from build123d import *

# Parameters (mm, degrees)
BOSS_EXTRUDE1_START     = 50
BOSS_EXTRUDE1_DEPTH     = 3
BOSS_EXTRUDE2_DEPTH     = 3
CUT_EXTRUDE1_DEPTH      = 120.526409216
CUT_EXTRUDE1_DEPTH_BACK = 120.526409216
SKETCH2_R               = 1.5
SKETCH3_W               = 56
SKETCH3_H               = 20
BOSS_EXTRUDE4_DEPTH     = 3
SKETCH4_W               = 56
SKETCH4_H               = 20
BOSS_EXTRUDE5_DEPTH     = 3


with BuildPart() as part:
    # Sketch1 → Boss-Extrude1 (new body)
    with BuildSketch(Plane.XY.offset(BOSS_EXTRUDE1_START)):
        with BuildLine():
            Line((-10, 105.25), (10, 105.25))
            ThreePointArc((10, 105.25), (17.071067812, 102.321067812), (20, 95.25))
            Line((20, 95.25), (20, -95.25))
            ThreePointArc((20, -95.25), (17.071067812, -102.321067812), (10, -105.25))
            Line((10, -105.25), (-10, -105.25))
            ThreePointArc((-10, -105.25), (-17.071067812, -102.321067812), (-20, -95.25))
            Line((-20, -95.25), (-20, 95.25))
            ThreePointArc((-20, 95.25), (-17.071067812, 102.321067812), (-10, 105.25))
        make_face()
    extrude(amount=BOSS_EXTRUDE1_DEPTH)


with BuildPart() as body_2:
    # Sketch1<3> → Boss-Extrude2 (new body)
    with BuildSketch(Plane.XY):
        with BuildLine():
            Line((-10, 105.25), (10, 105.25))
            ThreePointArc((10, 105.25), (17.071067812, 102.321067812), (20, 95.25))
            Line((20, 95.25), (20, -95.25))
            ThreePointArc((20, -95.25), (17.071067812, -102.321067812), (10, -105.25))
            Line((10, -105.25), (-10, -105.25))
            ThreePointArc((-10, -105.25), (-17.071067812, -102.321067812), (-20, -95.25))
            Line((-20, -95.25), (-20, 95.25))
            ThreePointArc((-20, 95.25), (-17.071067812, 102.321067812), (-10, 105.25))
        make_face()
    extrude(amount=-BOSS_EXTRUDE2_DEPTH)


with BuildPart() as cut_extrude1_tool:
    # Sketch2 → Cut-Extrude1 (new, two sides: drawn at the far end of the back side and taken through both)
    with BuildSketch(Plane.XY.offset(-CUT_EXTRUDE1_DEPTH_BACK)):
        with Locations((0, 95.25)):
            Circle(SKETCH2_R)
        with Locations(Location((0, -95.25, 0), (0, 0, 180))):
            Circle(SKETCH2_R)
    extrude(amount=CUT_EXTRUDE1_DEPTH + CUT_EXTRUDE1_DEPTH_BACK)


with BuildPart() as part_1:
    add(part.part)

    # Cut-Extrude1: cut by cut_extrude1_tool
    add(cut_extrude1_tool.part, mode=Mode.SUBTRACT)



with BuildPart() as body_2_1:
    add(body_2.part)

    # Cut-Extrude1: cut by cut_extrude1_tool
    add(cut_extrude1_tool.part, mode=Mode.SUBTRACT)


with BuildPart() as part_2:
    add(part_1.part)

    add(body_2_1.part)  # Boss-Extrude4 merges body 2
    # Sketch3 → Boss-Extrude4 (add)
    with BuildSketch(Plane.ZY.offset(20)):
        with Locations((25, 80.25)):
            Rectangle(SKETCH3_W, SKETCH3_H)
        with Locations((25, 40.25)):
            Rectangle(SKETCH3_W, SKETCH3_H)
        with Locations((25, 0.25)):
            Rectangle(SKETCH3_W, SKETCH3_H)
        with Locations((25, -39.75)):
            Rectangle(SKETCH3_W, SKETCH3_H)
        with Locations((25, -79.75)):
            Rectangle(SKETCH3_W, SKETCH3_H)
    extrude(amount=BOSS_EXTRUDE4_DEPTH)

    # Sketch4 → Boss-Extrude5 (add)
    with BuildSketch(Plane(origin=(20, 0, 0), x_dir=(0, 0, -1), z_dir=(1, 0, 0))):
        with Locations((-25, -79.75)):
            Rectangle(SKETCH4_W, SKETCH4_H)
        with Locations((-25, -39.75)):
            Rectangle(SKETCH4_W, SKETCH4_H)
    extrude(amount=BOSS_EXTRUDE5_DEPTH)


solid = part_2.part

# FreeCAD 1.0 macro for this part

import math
import FreeCAD as App
import Part
import Sketcher

V = App.Vector


def add_polygon(sketch, points):
    """Adds a closed chain of lines whose ends are joined by coincident constraints."""
    first, n = sketch.GeometryCount, len(points)
    for a, b in zip(points, points[1:] + points[:1]):
        sketch.addGeometry(Part.LineSegment(App.Vector(*a, 0), App.Vector(*b, 0)), False)
    for i in range(n):
        sketch.addConstraint(Sketcher.Constraint("Coincident", first + i, 2, first + (i + 1) % n, 1))

doc = App.newDocument("Part")
params = doc.addObject("Spreadsheet::Sheet", "Params")
for row, (alias, value) in enumerate([
    ("sketch1_radius", "10 mm"),
    ("sketch1_width", "20 mm"),
    ("sketch1_height", "190.5 mm"),
    ("pad1_length", "3 mm"),
    ("sketch2_radius", "10 mm"),
    ("sketch2_width", "20 mm"),
    ("sketch2_height", "190.5 mm"),
    ("pad2_length", "3 mm"),
    ("sketch3_diameter", "3 mm"),
    ("pad3_length", "120.526409 mm"),
    ("pad3_length2", "120.526409 mm"),
    ("sketch4_width", "20 mm"),
    ("sketch4_height", "56 mm"),
    ("pad4_length", "3 mm"),
    ("sketch5_width", "20 mm"),
    ("sketch5_height", "56 mm"),
    ("pad5_length", "3 mm"),
], start=1):
    params.set(f"A{row}", alias)
    params.set(f"B{row}", "=" + value)
    params.setAlias(f"B{row}", alias)

body = doc.addObject("PartDesign::Body", "Body")

sketch1 = body.newObject("Sketcher::SketchObject", "Sketch")
sketch1.AttachmentSupport = (doc.getObject("XY_Plane"), [""])
sketch1.MapMode = "FlatFace"
sketch1.AttachmentOffset = App.Placement(V(0, 0, 50), App.Rotation())
sketch1.addGeometry([
    Part.LineSegment(V(10, 105, 0), V(-10, 105, 0)),
    Part.ArcOfCircle(Part.Circle(V(-10, 95, 0), V(0, 0, 1), 10), math.radians(90), math.radians(180)),
    Part.LineSegment(V(-20, 95, 0), V(-20, -95, 0)),
    Part.ArcOfCircle(Part.Circle(V(-10, -95, 0), V(0, 0, 1), 10), math.radians(180), math.radians(270)),
    Part.LineSegment(V(-10, -105, 0), V(10, -105, 0)),
    Part.ArcOfCircle(Part.Circle(V(10, -95, 0), V(0, 0, 1), 10), math.radians(-90), math.radians(0)),
    Part.LineSegment(V(20, -95, 0), V(20, 95, 0)),
    Part.ArcOfCircle(Part.Circle(V(10, 95, 0), V(0, 0, 1), 10), math.radians(0), math.radians(90)),
], False)
sketch1.addConstraint([
    Sketcher.Constraint("Tangent", 0, 2, 1, 1),
    Sketcher.Constraint("Tangent", 1, 2, 2, 1),
    Sketcher.Constraint("Tangent", 2, 2, 3, 1),
    Sketcher.Constraint("Tangent", 3, 2, 4, 1),
    Sketcher.Constraint("Tangent", 4, 2, 5, 1),
    Sketcher.Constraint("Tangent", 5, 2, 6, 1),
    Sketcher.Constraint("Tangent", 6, 2, 7, 1),
    Sketcher.Constraint("Tangent", 7, 2, 0, 1),
    Sketcher.Constraint("Horizontal", 0),
    Sketcher.Constraint("Vertical", 2),
    Sketcher.Constraint("Horizontal", 4),
    Sketcher.Constraint("Vertical", 6),
    Sketcher.Constraint("Equal", 1, 3),
    Sketcher.Constraint("Equal", 3, 5),
    Sketcher.Constraint("Equal", 5, 7),
    Sketcher.Constraint("Symmetric", 1, 3, 5, 3, -1, 1),
    Sketcher.Constraint("Radius", 1, 10.0),
    Sketcher.Constraint("DistanceX", 0, 2, 0, 1, 20.0),
    Sketcher.Constraint("DistanceY", 2, 2, 2, 1, 190.5),
])
sketch1.setExpression("Constraints[16]", "Params.sketch1_radius")
sketch1.setExpression("Constraints[17]", "Params.sketch1_width")
sketch1.setExpression("Constraints[18]", "Params.sketch1_height")
pad1 = body.newObject("PartDesign::Pad", "Pad")
pad1.Profile = sketch1
pad1.setExpression("Length", "Params.pad1_length")
body2 = doc.addObject("PartDesign::Body", "Body001")

sketch2 = body2.newObject("Sketcher::SketchObject", "Sketch001")
sketch2.AttachmentSupport = (doc.getObject("XY_Plane001"), [""])
sketch2.MapMode = "FlatFace"
sketch2.addGeometry([
    Part.LineSegment(V(10, 105, 0), V(-10, 105, 0)),
    Part.ArcOfCircle(Part.Circle(V(-10, 95, 0), V(0, 0, 1), 10), math.radians(90), math.radians(180)),
    Part.LineSegment(V(-20, 95, 0), V(-20, -95, 0)),
    Part.ArcOfCircle(Part.Circle(V(-10, -95, 0), V(0, 0, 1), 10), math.radians(180), math.radians(270)),
    Part.LineSegment(V(-10, -105, 0), V(10, -105, 0)),
    Part.ArcOfCircle(Part.Circle(V(10, -95, 0), V(0, 0, 1), 10), math.radians(-90), math.radians(0)),
    Part.LineSegment(V(20, -95, 0), V(20, 95, 0)),
    Part.ArcOfCircle(Part.Circle(V(10, 95, 0), V(0, 0, 1), 10), math.radians(0), math.radians(90)),
], False)
sketch2.addConstraint([
    Sketcher.Constraint("Tangent", 0, 2, 1, 1),
    Sketcher.Constraint("Tangent", 1, 2, 2, 1),
    Sketcher.Constraint("Tangent", 2, 2, 3, 1),
    Sketcher.Constraint("Tangent", 3, 2, 4, 1),
    Sketcher.Constraint("Tangent", 4, 2, 5, 1),
    Sketcher.Constraint("Tangent", 5, 2, 6, 1),
    Sketcher.Constraint("Tangent", 6, 2, 7, 1),
    Sketcher.Constraint("Tangent", 7, 2, 0, 1),
    Sketcher.Constraint("Horizontal", 0),
    Sketcher.Constraint("Vertical", 2),
    Sketcher.Constraint("Horizontal", 4),
    Sketcher.Constraint("Vertical", 6),
    Sketcher.Constraint("Equal", 1, 3),
    Sketcher.Constraint("Equal", 3, 5),
    Sketcher.Constraint("Equal", 5, 7),
    Sketcher.Constraint("Symmetric", 1, 3, 5, 3, -1, 1),
    Sketcher.Constraint("Radius", 1, 10.0),
    Sketcher.Constraint("DistanceX", 0, 2, 0, 1, 20.0),
    Sketcher.Constraint("DistanceY", 2, 2, 2, 1, 190.5),
])
sketch2.setExpression("Constraints[16]", "Params.sketch2_radius")
sketch2.setExpression("Constraints[17]", "Params.sketch2_width")
sketch2.setExpression("Constraints[18]", "Params.sketch2_height")
pad2 = body2.newObject("PartDesign::Pad", "Pad001")
pad2.Profile = sketch2
pad2.setExpression("Length", "Params.pad2_length")
pad2.Reversed = True
body3 = doc.addObject("PartDesign::Body", "Body002")
body3.AllowCompound = True

sketch3 = body3.newObject("Sketcher::SketchObject", "Sketch002")
sketch3.AttachmentSupport = (doc.getObject("XY_Plane002"), [""])
sketch3.MapMode = "FlatFace"
sketch3.addGeometry([
    Part.Circle(V(0, 95.2, 0), V(0, 0, 1), 1.5),
    Part.Circle(V(0, -95.2, 0), V(0, 0, 1), 1.5),
], False)
sketch3.addConstraint([
    Sketcher.Constraint("Equal", 0, 1),
    Sketcher.Constraint("Symmetric", 0, 3, 1, 3, -1, 1),
    Sketcher.Constraint("PointOnObject", 0, 3, -2),
    Sketcher.Constraint("Diameter", 0, 3.0),
    Sketcher.Constraint("DistanceY", 1, 3, 0, 3, 190.5),
])
sketch3.setExpression("Constraints[3]", "Params.sketch3_diameter")
pad3 = body3.newObject("PartDesign::Pad", "Pad002")
pad3.Profile = sketch3
pad3.Type = "TwoLengths"
pad3.setExpression("Length", "Params.pad3_length")
pad3.setExpression("Length2", "Params.pad3_length2")
doc.recompute()

body4 = doc.addObject("PartDesign::Body", "Body003")
body4.BaseFeature = body3
boolean = body.newObject("PartDesign::Boolean", "Boolean")
boolean.Type = "Cut"
boolean.addObjects([body4])
doc.recompute()

boolean2 = body2.newObject("PartDesign::Boolean", "Boolean001")
boolean2.Type = "Cut"
boolean2.addObjects([body3])
body.AllowCompound = True
doc.recompute()

boolean3 = body.newObject("PartDesign::Boolean", "Boolean002")
boolean3.Type = "Fuse"
boolean3.addObjects([body2])

sketch4 = body.newObject("Sketcher::SketchObject", "Sketch003")
sketch4.AttachmentSupport = (doc.getObject("YZ_Plane"), [""])
sketch4.MapMode = "FlatFace"
sketch4.AttachmentOffset = App.Placement(V(0, 0, -20), App.Rotation())
add_polygon(sketch4, [(90, -3), (70, -3), (70, 53), (90, 53)])
add_polygon(sketch4, [(50, -3), (30, -3), (30, 53), (50, 53)])
add_polygon(sketch4, [(10, -3), (-10, -3), (-10, 53), (10, 53)])
add_polygon(sketch4, [(-30, -3), (-50, -3), (-50, 53), (-30, 53)])
add_polygon(sketch4, [(-70, -3), (-90, -3), (-90, 53), (-70, 53)])
sketch4.addConstraint([
    Sketcher.Constraint("Horizontal", 0),
    Sketcher.Constraint("Vertical", 1),
    Sketcher.Constraint("Horizontal", 2),
    Sketcher.Constraint("Vertical", 3),
    Sketcher.Constraint("Horizontal", 4),
    Sketcher.Constraint("Vertical", 5),
    Sketcher.Constraint("Horizontal", 6),
    Sketcher.Constraint("Vertical", 7),
    Sketcher.Constraint("Horizontal", 8),
    Sketcher.Constraint("Vertical", 9),
    Sketcher.Constraint("Horizontal", 10),
    Sketcher.Constraint("Vertical", 11),
    Sketcher.Constraint("Horizontal", 12),
    Sketcher.Constraint("Vertical", 13),
    Sketcher.Constraint("Horizontal", 14),
    Sketcher.Constraint("Vertical", 15),
    Sketcher.Constraint("Horizontal", 16),
    Sketcher.Constraint("Vertical", 17),
    Sketcher.Constraint("Horizontal", 18),
    Sketcher.Constraint("Vertical", 19),
    Sketcher.Constraint("Horizontal", 3, 2, 4, 2),
    Sketcher.Constraint("Horizontal", 2, 2, 5, 2),
    Sketcher.Constraint("Horizontal", 7, 2, 8, 2),
    Sketcher.Constraint("Horizontal", 6, 2, 9, 2),
    Sketcher.Constraint("Horizontal", 11, 2, 12, 2),
    Sketcher.Constraint("Horizontal", 10, 2, 13, 2),
    Sketcher.Constraint("Horizontal", 15, 2, 16, 2),
    Sketcher.Constraint("Horizontal", 14, 2, 17, 2),
    Sketcher.Constraint("Equal", 2, 4),
    Sketcher.Constraint("Equal", 6, 8),
    Sketcher.Constraint("Equal", 10, 12),
    Sketcher.Constraint("Equal", 14, 16),
    Sketcher.Constraint("DistanceX", 0, 2, 0, 1, 20.0),
    Sketcher.Constraint("DistanceY", 1, 1, 1, 2, 56.0),
    Sketcher.Constraint("DistanceY", 0, 2, -1, 1, 3.0),
    Sketcher.Constraint("DistanceX", 4, 2, 0, 2, 40.0),
    Sketcher.Constraint("DistanceX", 8, 2, 4, 2, 40.0),
    Sketcher.Constraint("DistanceX", 12, 2, 8, 2, 40.0),
    Sketcher.Constraint("DistanceX", 16, 2, 12, 2, 40.0),
    Sketcher.Constraint("DistanceX", -1, 1, 0, 2, 70.25),
])
sketch4.setExpression("Constraints[52]", "Params.sketch4_width")
sketch4.setExpression("Constraints[53]", "Params.sketch4_height")
pad4 = body.newObject("PartDesign::Pad", "Pad003")
pad4.Profile = sketch4
pad4.setExpression("Length", "Params.pad4_length")
pad4.Reversed = True

sketch5 = body.newObject("Sketcher::SketchObject", "Sketch004")
sketch5.AttachmentSupport = (doc.getObject("YZ_Plane"), [""])
sketch5.MapMode = "FlatFace"
sketch5.AttachmentOffset = App.Placement(V(0, 0, 20), App.Rotation())
add_polygon(sketch5, [(-70, 53), (-90, 53), (-90, -3), (-70, -3)])
add_polygon(sketch5, [(-30, 53), (-50, 53), (-50, -3), (-30, -3)])
sketch5.addConstraint([
    Sketcher.Constraint("Horizontal", 0),
    Sketcher.Constraint("Vertical", 1),
    Sketcher.Constraint("Horizontal", 2),
    Sketcher.Constraint("Vertical", 3),
    Sketcher.Constraint("Horizontal", 4),
    Sketcher.Constraint("Vertical", 5),
    Sketcher.Constraint("Horizontal", 6),
    Sketcher.Constraint("Vertical", 7),
    Sketcher.Constraint("Horizontal", 3, 2, 4, 2),
    Sketcher.Constraint("Horizontal", 2, 2, 5, 2),
    Sketcher.Constraint("Equal", 2, 4),
    Sketcher.Constraint("DistanceX", 0, 2, 0, 1, 20.0),
    Sketcher.Constraint("DistanceY", 1, 2, 1, 1, 56.0),
    Sketcher.Constraint("DistanceY", -1, 1, 0, 2, 53.0),
    Sketcher.Constraint("DistanceX", 3, 2, 4, 2, 20.0),
    Sketcher.Constraint("DistanceX", 0, 2, -1, 1, 89.75),
])
sketch5.setExpression("Constraints[19]", "Params.sketch5_width")
sketch5.setExpression("Constraints[20]", "Params.sketch5_height")
pad5 = body.newObject("PartDesign::Pad", "Pad004")
pad5.Profile = sketch5
pad5.setExpression("Length", "Params.pad5_length")

doc.recompute()
